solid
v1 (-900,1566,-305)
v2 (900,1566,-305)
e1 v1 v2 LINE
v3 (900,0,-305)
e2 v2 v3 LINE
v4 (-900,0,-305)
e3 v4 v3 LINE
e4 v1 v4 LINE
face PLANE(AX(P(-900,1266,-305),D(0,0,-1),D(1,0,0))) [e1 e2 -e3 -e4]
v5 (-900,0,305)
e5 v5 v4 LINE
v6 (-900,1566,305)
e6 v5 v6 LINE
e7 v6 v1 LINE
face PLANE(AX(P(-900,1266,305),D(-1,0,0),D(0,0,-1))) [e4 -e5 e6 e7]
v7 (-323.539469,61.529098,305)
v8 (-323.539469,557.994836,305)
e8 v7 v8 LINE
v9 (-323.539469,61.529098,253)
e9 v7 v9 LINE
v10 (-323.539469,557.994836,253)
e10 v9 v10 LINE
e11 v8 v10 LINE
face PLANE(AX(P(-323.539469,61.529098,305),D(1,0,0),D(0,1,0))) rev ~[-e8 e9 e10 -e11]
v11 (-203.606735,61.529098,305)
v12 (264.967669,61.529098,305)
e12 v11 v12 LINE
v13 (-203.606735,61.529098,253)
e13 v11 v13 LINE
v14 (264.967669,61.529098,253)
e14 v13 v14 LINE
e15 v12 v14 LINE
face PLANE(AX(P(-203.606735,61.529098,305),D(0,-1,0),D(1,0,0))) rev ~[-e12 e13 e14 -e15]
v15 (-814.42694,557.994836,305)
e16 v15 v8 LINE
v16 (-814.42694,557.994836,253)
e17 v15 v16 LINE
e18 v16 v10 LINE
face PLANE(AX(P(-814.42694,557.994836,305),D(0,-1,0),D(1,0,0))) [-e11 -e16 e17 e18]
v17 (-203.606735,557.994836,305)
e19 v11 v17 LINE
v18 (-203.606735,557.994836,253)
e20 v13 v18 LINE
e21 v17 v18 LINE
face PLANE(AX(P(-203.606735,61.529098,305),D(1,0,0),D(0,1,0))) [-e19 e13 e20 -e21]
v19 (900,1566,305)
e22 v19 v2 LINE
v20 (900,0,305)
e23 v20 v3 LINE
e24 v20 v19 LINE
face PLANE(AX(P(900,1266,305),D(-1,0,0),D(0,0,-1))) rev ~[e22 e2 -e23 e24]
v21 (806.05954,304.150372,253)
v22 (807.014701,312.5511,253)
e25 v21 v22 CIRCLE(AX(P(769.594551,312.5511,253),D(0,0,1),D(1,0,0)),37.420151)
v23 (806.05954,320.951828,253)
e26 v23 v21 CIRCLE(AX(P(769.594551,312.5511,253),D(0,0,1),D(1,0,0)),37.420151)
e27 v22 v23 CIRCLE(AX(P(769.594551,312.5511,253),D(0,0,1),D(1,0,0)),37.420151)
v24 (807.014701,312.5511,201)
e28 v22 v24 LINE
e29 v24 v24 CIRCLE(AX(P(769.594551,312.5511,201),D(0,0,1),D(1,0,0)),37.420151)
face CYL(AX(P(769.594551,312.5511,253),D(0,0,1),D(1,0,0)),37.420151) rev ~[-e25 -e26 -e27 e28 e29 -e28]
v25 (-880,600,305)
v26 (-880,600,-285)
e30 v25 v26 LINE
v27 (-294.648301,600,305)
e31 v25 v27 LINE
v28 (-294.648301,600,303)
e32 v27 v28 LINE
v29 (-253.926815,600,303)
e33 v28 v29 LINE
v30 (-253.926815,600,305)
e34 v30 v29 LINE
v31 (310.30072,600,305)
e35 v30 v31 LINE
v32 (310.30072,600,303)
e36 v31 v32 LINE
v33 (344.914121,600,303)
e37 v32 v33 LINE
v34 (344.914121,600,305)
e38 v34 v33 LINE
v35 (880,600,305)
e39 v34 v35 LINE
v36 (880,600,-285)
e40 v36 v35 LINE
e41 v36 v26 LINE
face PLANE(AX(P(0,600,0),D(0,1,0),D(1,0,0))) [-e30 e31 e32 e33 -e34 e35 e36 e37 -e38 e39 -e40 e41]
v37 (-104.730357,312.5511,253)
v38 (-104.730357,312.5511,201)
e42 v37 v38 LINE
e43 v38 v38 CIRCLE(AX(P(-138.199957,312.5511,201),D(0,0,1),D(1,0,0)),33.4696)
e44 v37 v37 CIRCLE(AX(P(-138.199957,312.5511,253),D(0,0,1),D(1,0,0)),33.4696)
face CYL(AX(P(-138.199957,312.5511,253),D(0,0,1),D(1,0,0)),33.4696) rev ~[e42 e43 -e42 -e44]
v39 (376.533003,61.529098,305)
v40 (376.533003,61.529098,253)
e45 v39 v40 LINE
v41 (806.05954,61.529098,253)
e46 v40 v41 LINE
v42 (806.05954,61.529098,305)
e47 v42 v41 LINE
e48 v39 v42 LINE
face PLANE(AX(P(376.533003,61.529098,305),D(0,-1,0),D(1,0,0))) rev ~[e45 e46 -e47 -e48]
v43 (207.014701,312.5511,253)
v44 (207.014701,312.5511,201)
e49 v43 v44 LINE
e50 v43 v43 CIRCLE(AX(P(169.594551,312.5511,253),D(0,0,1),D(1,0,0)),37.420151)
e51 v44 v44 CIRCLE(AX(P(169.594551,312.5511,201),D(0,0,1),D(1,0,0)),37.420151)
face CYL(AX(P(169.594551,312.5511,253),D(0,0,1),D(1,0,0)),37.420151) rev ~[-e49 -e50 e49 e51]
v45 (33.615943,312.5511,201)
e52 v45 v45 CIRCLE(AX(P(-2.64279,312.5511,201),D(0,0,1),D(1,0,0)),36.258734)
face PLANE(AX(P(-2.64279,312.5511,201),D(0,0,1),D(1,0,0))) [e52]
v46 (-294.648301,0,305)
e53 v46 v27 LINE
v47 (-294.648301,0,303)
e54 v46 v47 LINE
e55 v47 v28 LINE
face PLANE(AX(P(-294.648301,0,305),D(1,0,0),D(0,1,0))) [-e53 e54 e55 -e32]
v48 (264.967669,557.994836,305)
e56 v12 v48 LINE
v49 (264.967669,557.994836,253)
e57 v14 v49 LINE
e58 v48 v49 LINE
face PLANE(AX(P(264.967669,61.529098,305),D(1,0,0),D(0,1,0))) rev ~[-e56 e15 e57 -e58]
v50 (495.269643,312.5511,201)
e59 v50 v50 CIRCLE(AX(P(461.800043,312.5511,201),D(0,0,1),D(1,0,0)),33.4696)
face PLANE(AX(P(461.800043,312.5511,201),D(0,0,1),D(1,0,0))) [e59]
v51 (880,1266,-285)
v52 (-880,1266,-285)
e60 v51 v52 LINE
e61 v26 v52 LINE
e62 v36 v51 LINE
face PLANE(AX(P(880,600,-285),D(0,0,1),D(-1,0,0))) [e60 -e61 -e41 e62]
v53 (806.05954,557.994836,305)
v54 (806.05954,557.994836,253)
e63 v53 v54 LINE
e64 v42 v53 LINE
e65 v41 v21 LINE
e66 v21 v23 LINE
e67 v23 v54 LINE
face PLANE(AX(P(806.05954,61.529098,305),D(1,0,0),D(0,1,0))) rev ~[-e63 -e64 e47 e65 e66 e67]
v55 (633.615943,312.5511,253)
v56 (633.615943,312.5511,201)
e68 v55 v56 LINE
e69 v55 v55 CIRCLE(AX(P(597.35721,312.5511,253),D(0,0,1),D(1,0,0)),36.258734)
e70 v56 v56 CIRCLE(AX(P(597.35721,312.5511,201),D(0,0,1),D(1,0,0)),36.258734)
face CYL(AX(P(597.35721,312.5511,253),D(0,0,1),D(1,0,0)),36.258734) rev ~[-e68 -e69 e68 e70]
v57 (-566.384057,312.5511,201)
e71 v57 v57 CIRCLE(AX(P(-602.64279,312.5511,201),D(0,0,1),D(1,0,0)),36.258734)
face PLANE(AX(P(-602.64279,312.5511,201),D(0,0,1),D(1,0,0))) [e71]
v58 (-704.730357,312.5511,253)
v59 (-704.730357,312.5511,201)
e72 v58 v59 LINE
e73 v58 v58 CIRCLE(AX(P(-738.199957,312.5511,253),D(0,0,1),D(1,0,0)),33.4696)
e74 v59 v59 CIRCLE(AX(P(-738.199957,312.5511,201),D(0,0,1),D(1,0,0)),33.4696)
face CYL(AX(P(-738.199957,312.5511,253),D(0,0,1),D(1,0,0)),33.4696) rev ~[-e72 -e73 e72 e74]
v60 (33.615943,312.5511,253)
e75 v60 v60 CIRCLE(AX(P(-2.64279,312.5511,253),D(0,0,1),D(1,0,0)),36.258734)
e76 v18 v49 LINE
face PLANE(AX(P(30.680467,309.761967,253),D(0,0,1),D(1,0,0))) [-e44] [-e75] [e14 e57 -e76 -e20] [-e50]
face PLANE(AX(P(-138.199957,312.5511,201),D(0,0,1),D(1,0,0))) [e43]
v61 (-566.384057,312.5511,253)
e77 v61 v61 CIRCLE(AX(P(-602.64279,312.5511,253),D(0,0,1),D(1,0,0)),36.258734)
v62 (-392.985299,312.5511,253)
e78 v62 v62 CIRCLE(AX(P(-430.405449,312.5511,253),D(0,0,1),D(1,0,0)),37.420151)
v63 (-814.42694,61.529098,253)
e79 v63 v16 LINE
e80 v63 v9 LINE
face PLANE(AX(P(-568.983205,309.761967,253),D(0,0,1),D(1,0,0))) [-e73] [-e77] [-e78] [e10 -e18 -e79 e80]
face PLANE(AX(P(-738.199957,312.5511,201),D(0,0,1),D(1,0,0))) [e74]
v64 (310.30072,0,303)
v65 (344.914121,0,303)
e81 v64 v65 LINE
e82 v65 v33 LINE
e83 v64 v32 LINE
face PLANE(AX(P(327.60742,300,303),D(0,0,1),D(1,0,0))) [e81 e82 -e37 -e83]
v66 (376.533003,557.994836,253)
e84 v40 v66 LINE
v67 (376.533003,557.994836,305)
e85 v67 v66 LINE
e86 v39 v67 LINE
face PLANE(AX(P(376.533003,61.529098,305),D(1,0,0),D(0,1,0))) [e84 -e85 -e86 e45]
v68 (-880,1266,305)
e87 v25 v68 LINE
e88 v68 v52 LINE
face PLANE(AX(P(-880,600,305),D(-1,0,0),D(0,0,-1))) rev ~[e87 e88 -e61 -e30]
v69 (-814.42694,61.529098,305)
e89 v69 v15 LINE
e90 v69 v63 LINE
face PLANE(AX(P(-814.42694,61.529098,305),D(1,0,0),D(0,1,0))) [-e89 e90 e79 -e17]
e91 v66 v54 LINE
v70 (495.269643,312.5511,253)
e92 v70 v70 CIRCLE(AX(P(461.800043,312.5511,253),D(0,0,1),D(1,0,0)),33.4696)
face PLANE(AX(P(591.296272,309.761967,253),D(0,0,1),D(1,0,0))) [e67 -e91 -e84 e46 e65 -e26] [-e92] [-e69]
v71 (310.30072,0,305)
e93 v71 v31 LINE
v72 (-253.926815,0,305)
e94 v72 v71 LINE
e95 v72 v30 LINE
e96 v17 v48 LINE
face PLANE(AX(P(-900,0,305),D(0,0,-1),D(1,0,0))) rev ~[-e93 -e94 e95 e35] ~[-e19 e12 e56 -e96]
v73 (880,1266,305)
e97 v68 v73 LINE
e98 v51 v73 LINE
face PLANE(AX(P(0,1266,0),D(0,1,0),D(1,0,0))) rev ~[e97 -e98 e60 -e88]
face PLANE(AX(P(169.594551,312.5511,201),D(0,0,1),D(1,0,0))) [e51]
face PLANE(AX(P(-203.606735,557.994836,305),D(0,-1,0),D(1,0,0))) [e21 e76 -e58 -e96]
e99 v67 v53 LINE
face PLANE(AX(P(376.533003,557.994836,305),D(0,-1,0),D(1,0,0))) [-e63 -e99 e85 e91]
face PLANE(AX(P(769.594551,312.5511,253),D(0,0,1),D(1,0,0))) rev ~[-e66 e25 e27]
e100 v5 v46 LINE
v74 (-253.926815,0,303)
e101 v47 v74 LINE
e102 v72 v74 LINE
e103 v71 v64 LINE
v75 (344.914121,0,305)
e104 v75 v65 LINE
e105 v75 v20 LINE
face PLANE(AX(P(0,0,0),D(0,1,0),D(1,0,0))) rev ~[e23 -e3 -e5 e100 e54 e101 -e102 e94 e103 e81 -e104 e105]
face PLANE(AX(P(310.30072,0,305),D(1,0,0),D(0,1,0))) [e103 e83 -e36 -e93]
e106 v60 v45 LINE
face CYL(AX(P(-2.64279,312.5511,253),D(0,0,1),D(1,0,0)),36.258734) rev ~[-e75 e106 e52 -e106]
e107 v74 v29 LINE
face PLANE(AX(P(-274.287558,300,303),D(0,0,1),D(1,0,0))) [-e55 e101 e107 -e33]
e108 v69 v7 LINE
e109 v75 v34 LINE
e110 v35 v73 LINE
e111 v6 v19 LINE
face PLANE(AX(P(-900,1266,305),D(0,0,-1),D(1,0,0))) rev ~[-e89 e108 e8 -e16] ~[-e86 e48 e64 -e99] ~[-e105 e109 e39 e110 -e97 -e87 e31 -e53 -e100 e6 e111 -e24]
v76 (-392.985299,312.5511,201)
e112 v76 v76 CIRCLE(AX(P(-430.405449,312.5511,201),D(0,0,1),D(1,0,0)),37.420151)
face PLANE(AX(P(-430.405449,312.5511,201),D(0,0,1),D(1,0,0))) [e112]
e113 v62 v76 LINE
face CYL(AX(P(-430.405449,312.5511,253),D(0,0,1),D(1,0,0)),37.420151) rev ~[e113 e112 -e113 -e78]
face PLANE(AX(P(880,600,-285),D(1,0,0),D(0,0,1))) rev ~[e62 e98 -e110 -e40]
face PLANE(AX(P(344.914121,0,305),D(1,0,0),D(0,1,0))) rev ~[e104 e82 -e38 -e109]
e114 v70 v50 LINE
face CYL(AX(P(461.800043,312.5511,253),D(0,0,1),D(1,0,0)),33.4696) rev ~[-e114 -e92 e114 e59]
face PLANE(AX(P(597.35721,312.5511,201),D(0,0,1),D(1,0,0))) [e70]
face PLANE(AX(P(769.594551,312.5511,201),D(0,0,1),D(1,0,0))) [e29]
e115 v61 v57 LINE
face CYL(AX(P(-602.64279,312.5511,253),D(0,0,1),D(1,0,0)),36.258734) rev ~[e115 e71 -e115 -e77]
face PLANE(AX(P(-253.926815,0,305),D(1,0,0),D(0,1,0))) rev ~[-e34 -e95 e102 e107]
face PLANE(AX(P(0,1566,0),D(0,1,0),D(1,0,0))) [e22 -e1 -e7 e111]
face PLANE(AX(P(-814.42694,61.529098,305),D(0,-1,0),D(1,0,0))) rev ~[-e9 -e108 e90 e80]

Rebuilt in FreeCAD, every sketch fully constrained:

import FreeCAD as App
import Part
import Sketcher
from FreeCAD import Vector
Q = App.Units.Quantity

doc = App.newDocument("Part")
body = doc.addObject("PartDesign::Body", "Body")

# Sketch on XZ plane
sketch1 = body.newObject("Sketcher::SketchObject", "Sketch")
sketch1.AttachmentSupport = (doc.getObject("XZ_Plane"), [""])
sketch1.MapMode = "FlatFace"
sketch1.addGeometry(Part.LineSegment(Vector(-900, -305, 0), Vector(-900, 305, 0)), False)
sketch1.addGeometry(Part.LineSegment(Vector(-900, 305, 0), Vector(900, 305, 0)), False)
sketch1.addGeometry(Part.LineSegment(Vector(900, 305, 0), Vector(900, -305, 0)), False)
sketch1.addGeometry(Part.LineSegment(Vector(900, -305, 0), Vector(-900, -305, 0)), False)
sketch1.addConstraint(Sketcher.Constraint("Coincident", 0, 2, 1, 1))
sketch1.addConstraint(Sketcher.Constraint("Coincident", 1, 2, 2, 1))
sketch1.addConstraint(Sketcher.Constraint("Coincident", 2, 2, 3, 1))
sketch1.addConstraint(Sketcher.Constraint("Coincident", 3, 2, 0, 1))
sketch1.addConstraint(Sketcher.Constraint("Vertical", 0))
sketch1.addConstraint(Sketcher.Constraint("Horizontal", 1))
sketch1.addConstraint(Sketcher.Constraint("Vertical", 2))
sketch1.addConstraint(Sketcher.Constraint("Horizontal", 3))
sketch1.addConstraint(Sketcher.Constraint("Symmetric", 0, 2, 2, 2, -1, 1))
sketch1.addConstraint(Sketcher.Constraint("DistanceX", 1, 1, 1, 2, Q("1800 mm")))
sketch1.addConstraint(Sketcher.Constraint("DistanceY", 0, 1, 0, 2, Q("610 mm")))
pad1 = body.newObject("PartDesign::Pad", "Pad")
pad1.Profile = sketch1
pad1.Length = 600
pad1.Reversed = True

# Sketch on XY plane
sketch2 = body.newObject("Sketcher::SketchObject", "Sketch001")
sketch2.AttachmentSupport = (doc.getObject("XY_Plane"), [""])
sketch2.MapMode = "FlatFace"
sketch2.AttachmentOffset = App.Placement(Vector(0, 0, 305), App.Rotation())
sketch2.addGeometry(Part.LineSegment(Vector(-295, 600, 0), Vector(-295, 0, 0)), False)
sketch2.addGeometry(Part.LineSegment(Vector(-295, 0, 0), Vector(-254, 0, 0)), False)
sketch2.addGeometry(Part.LineSegment(Vector(-254, 0, 0), Vector(-254, 600, 0)), False)
sketch2.addGeometry(Part.LineSegment(Vector(-254, 600, 0), Vector(-295, 600, 0)), False)
sketch2.addGeometry(Part.LineSegment(Vector(310, 600, 0), Vector(310, 0, 0)), False)
sketch2.addGeometry(Part.LineSegment(Vector(310, 0, 0), Vector(345, 0, 0)), False)
sketch2.addGeometry(Part.LineSegment(Vector(345, 0, 0), Vector(345, 600, 0)), False)
sketch2.addGeometry(Part.LineSegment(Vector(345, 600, 0), Vector(310, 600, 0)), False)
sketch2.addConstraint(Sketcher.Constraint("Coincident", 0, 2, 1, 1))
sketch2.addConstraint(Sketcher.Constraint("Coincident", 1, 2, 2, 1))
sketch2.addConstraint(Sketcher.Constraint("Coincident", 2, 2, 3, 1))
sketch2.addConstraint(Sketcher.Constraint("Coincident", 3, 2, 0, 1))
sketch2.addConstraint(Sketcher.Constraint("Coincident", 4, 2, 5, 1))
sketch2.addConstraint(Sketcher.Constraint("Coincident", 5, 2, 6, 1))
sketch2.addConstraint(Sketcher.Constraint("Coincident", 6, 2, 7, 1))
sketch2.addConstraint(Sketcher.Constraint("Coincident", 7, 2, 4, 1))
sketch2.addConstraint(Sketcher.Constraint("Vertical", 0))
sketch2.addConstraint(Sketcher.Constraint("Horizontal", 1))
sketch2.addConstraint(Sketcher.Constraint("Vertical", 2))
sketch2.addConstraint(Sketcher.Constraint("Horizontal", 3))
sketch2.addConstraint(Sketcher.Constraint("Vertical", 4))
sketch2.addConstraint(Sketcher.Constraint("Horizontal", 5))
sketch2.addConstraint(Sketcher.Constraint("Vertical", 6))
sketch2.addConstraint(Sketcher.Constraint("Horizontal", 7))
sketch2.addConstraint(Sketcher.Constraint("PointOnObject", 0, 2, -1))
sketch2.addConstraint(Sketcher.Constraint("PointOnObject", 4, 2, -1))
sketch2.addConstraint(Sketcher.Constraint("Horizontal", 3, 2, 6, 2))
sketch2.addConstraint(Sketcher.Constraint("DistanceY", 0, 2, 0, 1, Q("600 mm")))
sketch2.addConstraint(Sketcher.Constraint("DistanceX", 5, 1, 5, 2, Q("34.613401 mm")))
sketch2.addConstraint(Sketcher.Constraint("DistanceX", 0, 2, -1, 1, Q("294.648301 mm")))
sketch2.addConstraint(Sketcher.Constraint("DistanceX", 1, 1, 1, 2, Q("40.721487 mm")))
sketch2.addConstraint(Sketcher.Constraint("DistanceX", -1, 1, 4, 2, Q("310.30072 mm")))
pocket1 = body.newObject("PartDesign::Pocket", "Pocket")
pocket1.Profile = sketch2
pocket1.Length = 2

# Sketch on XY plane
sketch3 = body.newObject("Sketcher::SketchObject", "Sketch002")
sketch3.AttachmentSupport = (doc.getObject("XY_Plane"), [""])
sketch3.MapMode = "FlatFace"
sketch3.AttachmentOffset = App.Placement(Vector(0, 0, 305), App.Rotation())
sketch3.addGeometry(Part.LineSegment(Vector(-814, 558, 0), Vector(-814, 62, 0)), False)
sketch3.addGeometry(Part.LineSegment(Vector(-814, 62, 0), Vector(-324, 62, 0)), False)
sketch3.addGeometry(Part.LineSegment(Vector(-324, 62, 0), Vector(-324, 558, 0)), False)
sketch3.addGeometry(Part.LineSegment(Vector(-324, 558, 0), Vector(-814, 558, 0)), False)
sketch3.addGeometry(Part.LineSegment(Vector(-204, 558, 0), Vector(-204, 62, 0)), False)
sketch3.addGeometry(Part.LineSegment(Vector(-204, 62, 0), Vector(265, 62, 0)), False)
sketch3.addGeometry(Part.LineSegment(Vector(265, 62, 0), Vector(265, 558, 0)), False)
sketch3.addGeometry(Part.LineSegment(Vector(265, 558, 0), Vector(-204, 558, 0)), False)
sketch3.addGeometry(Part.LineSegment(Vector(377, 558, 0), Vector(377, 62, 0)), False)
sketch3.addGeometry(Part.LineSegment(Vector(377, 62, 0), Vector(806, 62, 0)), False)
sketch3.addGeometry(Part.LineSegment(Vector(806, 62, 0), Vector(806, 558, 0)), False)
sketch3.addGeometry(Part.LineSegment(Vector(806, 558, 0), Vector(377, 558, 0)), False)
sketch3.addConstraint(Sketcher.Constraint("Coincident", 0, 2, 1, 1))
sketch3.addConstraint(Sketcher.Constraint("Coincident", 1, 2, 2, 1))
sketch3.addConstraint(Sketcher.Constraint("Coincident", 2, 2, 3, 1))
sketch3.addConstraint(Sketcher.Constraint("Coincident", 3, 2, 0, 1))
sketch3.addConstraint(Sketcher.Constraint("Coincident", 4, 2, 5, 1))
sketch3.addConstraint(Sketcher.Constraint("Coincident", 5, 2, 6, 1))
sketch3.addConstraint(Sketcher.Constraint("Coincident", 6, 2, 7, 1))
sketch3.addConstraint(Sketcher.Constraint("Coincident", 7, 2, 4, 1))
sketch3.addConstraint(Sketcher.Constraint("Coincident", 8, 2, 9, 1))
sketch3.addConstraint(Sketcher.Constraint("Coincident", 9, 2, 10, 1))
sketch3.addConstraint(Sketcher.Constraint("Coincident", 10, 2, 11, 1))
sketch3.addConstraint(Sketcher.Constraint("Coincident", 11, 2, 8, 1))
sketch3.addConstraint(Sketcher.Constraint("Vertical", 0))
sketch3.addConstraint(Sketcher.Constraint("Horizontal", 1))
sketch3.addConstraint(Sketcher.Constraint("Vertical", 2))
sketch3.addConstraint(Sketcher.Constraint("Horizontal", 3))
sketch3.addConstraint(Sketcher.Constraint("Vertical", 4))
sketch3.addConstraint(Sketcher.Constraint("Horizontal", 5))
sketch3.addConstraint(Sketcher.Constraint("Vertical", 6))
sketch3.addConstraint(Sketcher.Constraint("Horizontal", 7))
sketch3.addConstraint(Sketcher.Constraint("Vertical", 8))
sketch3.addConstraint(Sketcher.Constraint("Horizontal", 9))
sketch3.addConstraint(Sketcher.Constraint("Vertical", 10))
sketch3.addConstraint(Sketcher.Constraint("Horizontal", 11))
sketch3.addConstraint(Sketcher.Constraint("Horizontal", 1, 2, 4, 2))
sketch3.addConstraint(Sketcher.Constraint("Horizontal", 3, 2, 6, 2))
sketch3.addConstraint(Sketcher.Constraint("Horizontal", 5, 2, 8, 2))
sketch3.addConstraint(Sketcher.Constraint("Horizontal", 7, 2, 10, 2))
sketch3.addConstraint(Sketcher.Constraint("DistanceX", 1, 1, 1, 2, Q("490.887471 mm")))
sketch3.addConstraint(Sketcher.Constraint("DistanceX", 5, 1, 5, 2, Q("468.574404 mm")))
sketch3.addConstraint(Sketcher.Constraint("DistanceX", 9, 1, 9, 2, Q("429.526537 mm")))
sketch3.addConstraint(Sketcher.Constraint("DistanceY", 0, 2, 0, 1, Q("496.465738 mm")))
sketch3.addConstraint(Sketcher.Constraint("DistanceX", 0, 2, -1, 1, Q("814.42694 mm")))
sketch3.addConstraint(Sketcher.Constraint("DistanceX", -1, 1, 5, 2, Q("264.967669 mm")))
sketch3.addConstraint(Sketcher.Constraint("DistanceX", -1, 1, 9, 2, Q("806.05954 mm")))
sketch3.addConstraint(Sketcher.Constraint("DistanceY", -1, 1, 0, 2, Q("61.529098 mm")))
pocket2 = body.newObject("PartDesign::Pocket", "Pocket001")
pocket2.Profile = sketch3
pocket2.Length = 52

# Sketch on XY plane
sketch4 = body.newObject("Sketcher::SketchObject", "Sketch003")
sketch4.AttachmentSupport = (doc.getObject("XY_Plane"), [""])
sketch4.MapMode = "FlatFace"
sketch4.AttachmentOffset = App.Placement(Vector(0, 0, 253), App.Rotation())
sketch4.addGeometry(Part.Circle(Vector(-738, 313, 0), Vector(0, 0, 1), 33), False)
sketch4.addGeometry(Part.Circle(Vector(-603, 313, 0), Vector(0, 0, 1), 36), False)
sketch4.addGeometry(Part.Circle(Vector(-430, 313, 0), Vector(0, 0, 1), 37), False)
sketch4.addConstraint(Sketcher.Constraint("Horizontal", 0, 3, 1, 3))
sketch4.addConstraint(Sketcher.Constraint("Horizontal", 1, 3, 2, 3))
sketch4.addConstraint(Sketcher.Constraint("Diameter", 0, Q("66.939201 mm")))
sketch4.addConstraint(Sketcher.Constraint("Diameter", 2, Q("74.840301 mm")))
sketch4.addConstraint(Sketcher.Constraint("Diameter", 1, Q("72.517467 mm")))
sketch4.addConstraint(Sketcher.Constraint("DistanceY", -1, 1, 0, 3, Q("312.5511 mm")))
sketch4.addConstraint(Sketcher.Constraint("DistanceX", 1, 3, -1, 1, Q("602.64279 mm")))
sketch4.addConstraint(Sketcher.Constraint("DistanceX", 2, 3, -1, 1, Q("430.405449 mm")))
sketch4.addConstraint(Sketcher.Constraint("DistanceX", 0, 3, -1, 1, Q("738.199957 mm")))
pocket3 = body.newObject("PartDesign::Pocket", "Pocket002")
pocket3.Profile = sketch4
pocket3.Length = 52
doc.recompute()

linearpattern = body.newObject("PartDesign::LinearPattern", "LinearPattern")
linearpattern.Originals = [pocket3]
linearpattern.Direction = (doc.getObject("X_Axis"), [""])
linearpattern.Mode = "offset"
linearpattern.Offset = 600
linearpattern.Occurrences = 3
body.Tip = linearpattern

# Sketch on XZ plane
sketch5 = body.newObject("Sketcher::SketchObject", "Sketch004")
sketch5.AttachmentSupport = (doc.getObject("XZ_Plane"), [""])
sketch5.MapMode = "FlatFace"
sketch5.AttachmentOffset = App.Placement(Vector(0, 0, -600), App.Rotation())
sketch5.addGeometry(Part.LineSegment(Vector(880, 305, 0), Vector(900, 305, 0)), False)
sketch5.addGeometry(Part.LineSegment(Vector(900, 305, 0), Vector(900, -305, 0)), False)
sketch5.addGeometry(Part.LineSegment(Vector(900, -305, 0), Vector(-900, -305, 0)), False)
sketch5.addGeometry(Part.LineSegment(Vector(-900, -305, 0), Vector(-900, 305, 0)), False)
sketch5.addGeometry(Part.LineSegment(Vector(-900, 305, 0), Vector(-880, 305, 0)), False)
sketch5.addGeometry(Part.LineSegment(Vector(-880, 305, 0), Vector(-880, -285, 0)), False)
sketch5.addGeometry(Part.LineSegment(Vector(-880, -285, 0), Vector(880, -285, 0)), False)
sketch5.addGeometry(Part.LineSegment(Vector(880, -285, 0), Vector(880, 305, 0)), False)
sketch5.addConstraint(Sketcher.Constraint("Coincident", 0, 2, 1, 1))
sketch5.addConstraint(Sketcher.Constraint("Coincident", 1, 2, 2, 1))
sketch5.addConstraint(Sketcher.Constraint("Coincident", 2, 2, 3, 1))
sketch5.addConstraint(Sketcher.Constraint("Coincident", 3, 2, 4, 1))
sketch5.addConstraint(Sketcher.Constraint("Coincident", 4, 2, 5, 1))
sketch5.addConstraint(Sketcher.Constraint("Coincident", 5, 2, 6, 1))
sketch5.addConstraint(Sketcher.Constraint("Coincident", 6, 2, 7, 1))
sketch5.addConstraint(Sketcher.Constraint("Coincident", 7, 2, 0, 1))
sketch5.addConstraint(Sketcher.Constraint("Horizontal", 0))
sketch5.addConstraint(Sketcher.Constraint("Vertical", 1))
sketch5.addConstraint(Sketcher.Constraint("Horizontal", 2))
sketch5.addConstraint(Sketcher.Constraint("Vertical", 3))
sketch5.addConstraint(Sketcher.Constraint("Horizontal", 4))
sketch5.addConstraint(Sketcher.Constraint("Vertical", 5))
sketch5.addConstraint(Sketcher.Constraint("Horizontal", 6))
sketch5.addConstraint(Sketcher.Constraint("Vertical", 7))
sketch5.addConstraint(Sketcher.Constraint("Symmetric", 0, 2, 2, 2, -1, 1))
sketch5.addConstraint(Sketcher.Constraint("Symmetric", 4, 2, 7, 2, -2))
sketch5.addConstraint(Sketcher.Constraint("DistanceX", 0, 1, 0, 2, Q("20 mm")))
sketch5.addConstraint(Sketcher.Constraint("DistanceX", 2, 2, 2, 1, Q("1800 mm")))
sketch5.addConstraint(Sketcher.Constraint("DistanceY", 1, 2, 1, 1, Q("610 mm")))
sketch5.addConstraint(Sketcher.Constraint("DistanceY", 5, 2, 5, 1, Q("590 mm")))
pad2 = body.newObject("PartDesign::Pad", "Pad001")
pad2.Profile = sketch5
pad2.Length = 666
pad2.Reversed = True

# Sketch on XZ plane
sketch6 = body.newObject("Sketcher::SketchObject", "Sketch005")
sketch6.AttachmentSupport = (doc.getObject("XZ_Plane"), [""])
sketch6.MapMode = "FlatFace"
sketch6.AttachmentOffset = App.Placement(Vector(0, 0, -1266), App.Rotation())
sketch6.addGeometry(Part.LineSegment(Vector(-900, -305, 0), Vector(-900, 305, 0)), False)
sketch6.addGeometry(Part.LineSegment(Vector(-900, 305, 0), Vector(900, 305, 0)), False)
sketch6.addGeometry(Part.LineSegment(Vector(900, 305, 0), Vector(900, -305, 0)), False)
sketch6.addGeometry(Part.LineSegment(Vector(900, -305, 0), Vector(-900, -305, 0)), False)
sketch6.addConstraint(Sketcher.Constraint("Coincident", 0, 2, 1, 1))
sketch6.addConstraint(Sketcher.Constraint("Coincident", 1, 2, 2, 1))
sketch6.addConstraint(Sketcher.Constraint("Coincident", 2, 2, 3, 1))
sketch6.addConstraint(Sketcher.Constraint("Coincident", 3, 2, 0, 1))
sketch6.addConstraint(Sketcher.Constraint("Vertical", 0))
sketch6.addConstraint(Sketcher.Constraint("Horizontal", 1))
sketch6.addConstraint(Sketcher.Constraint("Vertical", 2))
sketch6.addConstraint(Sketcher.Constraint("Horizontal", 3))
sketch6.addConstraint(Sketcher.Constraint("Symmetric", 0, 2, 2, 2, -1, 1))
sketch6.addConstraint(Sketcher.Constraint("DistanceX", 1, 1, 1, 2, Q("1800 mm")))
sketch6.addConstraint(Sketcher.Constraint("DistanceY", 0, 1, 0, 2, Q("610 mm")))
pad3 = body.newObject("PartDesign::Pad", "Pad002")
pad3.Profile = sketch6
pad3.Length = 300
pad3.Reversed = True

doc.recompute()
